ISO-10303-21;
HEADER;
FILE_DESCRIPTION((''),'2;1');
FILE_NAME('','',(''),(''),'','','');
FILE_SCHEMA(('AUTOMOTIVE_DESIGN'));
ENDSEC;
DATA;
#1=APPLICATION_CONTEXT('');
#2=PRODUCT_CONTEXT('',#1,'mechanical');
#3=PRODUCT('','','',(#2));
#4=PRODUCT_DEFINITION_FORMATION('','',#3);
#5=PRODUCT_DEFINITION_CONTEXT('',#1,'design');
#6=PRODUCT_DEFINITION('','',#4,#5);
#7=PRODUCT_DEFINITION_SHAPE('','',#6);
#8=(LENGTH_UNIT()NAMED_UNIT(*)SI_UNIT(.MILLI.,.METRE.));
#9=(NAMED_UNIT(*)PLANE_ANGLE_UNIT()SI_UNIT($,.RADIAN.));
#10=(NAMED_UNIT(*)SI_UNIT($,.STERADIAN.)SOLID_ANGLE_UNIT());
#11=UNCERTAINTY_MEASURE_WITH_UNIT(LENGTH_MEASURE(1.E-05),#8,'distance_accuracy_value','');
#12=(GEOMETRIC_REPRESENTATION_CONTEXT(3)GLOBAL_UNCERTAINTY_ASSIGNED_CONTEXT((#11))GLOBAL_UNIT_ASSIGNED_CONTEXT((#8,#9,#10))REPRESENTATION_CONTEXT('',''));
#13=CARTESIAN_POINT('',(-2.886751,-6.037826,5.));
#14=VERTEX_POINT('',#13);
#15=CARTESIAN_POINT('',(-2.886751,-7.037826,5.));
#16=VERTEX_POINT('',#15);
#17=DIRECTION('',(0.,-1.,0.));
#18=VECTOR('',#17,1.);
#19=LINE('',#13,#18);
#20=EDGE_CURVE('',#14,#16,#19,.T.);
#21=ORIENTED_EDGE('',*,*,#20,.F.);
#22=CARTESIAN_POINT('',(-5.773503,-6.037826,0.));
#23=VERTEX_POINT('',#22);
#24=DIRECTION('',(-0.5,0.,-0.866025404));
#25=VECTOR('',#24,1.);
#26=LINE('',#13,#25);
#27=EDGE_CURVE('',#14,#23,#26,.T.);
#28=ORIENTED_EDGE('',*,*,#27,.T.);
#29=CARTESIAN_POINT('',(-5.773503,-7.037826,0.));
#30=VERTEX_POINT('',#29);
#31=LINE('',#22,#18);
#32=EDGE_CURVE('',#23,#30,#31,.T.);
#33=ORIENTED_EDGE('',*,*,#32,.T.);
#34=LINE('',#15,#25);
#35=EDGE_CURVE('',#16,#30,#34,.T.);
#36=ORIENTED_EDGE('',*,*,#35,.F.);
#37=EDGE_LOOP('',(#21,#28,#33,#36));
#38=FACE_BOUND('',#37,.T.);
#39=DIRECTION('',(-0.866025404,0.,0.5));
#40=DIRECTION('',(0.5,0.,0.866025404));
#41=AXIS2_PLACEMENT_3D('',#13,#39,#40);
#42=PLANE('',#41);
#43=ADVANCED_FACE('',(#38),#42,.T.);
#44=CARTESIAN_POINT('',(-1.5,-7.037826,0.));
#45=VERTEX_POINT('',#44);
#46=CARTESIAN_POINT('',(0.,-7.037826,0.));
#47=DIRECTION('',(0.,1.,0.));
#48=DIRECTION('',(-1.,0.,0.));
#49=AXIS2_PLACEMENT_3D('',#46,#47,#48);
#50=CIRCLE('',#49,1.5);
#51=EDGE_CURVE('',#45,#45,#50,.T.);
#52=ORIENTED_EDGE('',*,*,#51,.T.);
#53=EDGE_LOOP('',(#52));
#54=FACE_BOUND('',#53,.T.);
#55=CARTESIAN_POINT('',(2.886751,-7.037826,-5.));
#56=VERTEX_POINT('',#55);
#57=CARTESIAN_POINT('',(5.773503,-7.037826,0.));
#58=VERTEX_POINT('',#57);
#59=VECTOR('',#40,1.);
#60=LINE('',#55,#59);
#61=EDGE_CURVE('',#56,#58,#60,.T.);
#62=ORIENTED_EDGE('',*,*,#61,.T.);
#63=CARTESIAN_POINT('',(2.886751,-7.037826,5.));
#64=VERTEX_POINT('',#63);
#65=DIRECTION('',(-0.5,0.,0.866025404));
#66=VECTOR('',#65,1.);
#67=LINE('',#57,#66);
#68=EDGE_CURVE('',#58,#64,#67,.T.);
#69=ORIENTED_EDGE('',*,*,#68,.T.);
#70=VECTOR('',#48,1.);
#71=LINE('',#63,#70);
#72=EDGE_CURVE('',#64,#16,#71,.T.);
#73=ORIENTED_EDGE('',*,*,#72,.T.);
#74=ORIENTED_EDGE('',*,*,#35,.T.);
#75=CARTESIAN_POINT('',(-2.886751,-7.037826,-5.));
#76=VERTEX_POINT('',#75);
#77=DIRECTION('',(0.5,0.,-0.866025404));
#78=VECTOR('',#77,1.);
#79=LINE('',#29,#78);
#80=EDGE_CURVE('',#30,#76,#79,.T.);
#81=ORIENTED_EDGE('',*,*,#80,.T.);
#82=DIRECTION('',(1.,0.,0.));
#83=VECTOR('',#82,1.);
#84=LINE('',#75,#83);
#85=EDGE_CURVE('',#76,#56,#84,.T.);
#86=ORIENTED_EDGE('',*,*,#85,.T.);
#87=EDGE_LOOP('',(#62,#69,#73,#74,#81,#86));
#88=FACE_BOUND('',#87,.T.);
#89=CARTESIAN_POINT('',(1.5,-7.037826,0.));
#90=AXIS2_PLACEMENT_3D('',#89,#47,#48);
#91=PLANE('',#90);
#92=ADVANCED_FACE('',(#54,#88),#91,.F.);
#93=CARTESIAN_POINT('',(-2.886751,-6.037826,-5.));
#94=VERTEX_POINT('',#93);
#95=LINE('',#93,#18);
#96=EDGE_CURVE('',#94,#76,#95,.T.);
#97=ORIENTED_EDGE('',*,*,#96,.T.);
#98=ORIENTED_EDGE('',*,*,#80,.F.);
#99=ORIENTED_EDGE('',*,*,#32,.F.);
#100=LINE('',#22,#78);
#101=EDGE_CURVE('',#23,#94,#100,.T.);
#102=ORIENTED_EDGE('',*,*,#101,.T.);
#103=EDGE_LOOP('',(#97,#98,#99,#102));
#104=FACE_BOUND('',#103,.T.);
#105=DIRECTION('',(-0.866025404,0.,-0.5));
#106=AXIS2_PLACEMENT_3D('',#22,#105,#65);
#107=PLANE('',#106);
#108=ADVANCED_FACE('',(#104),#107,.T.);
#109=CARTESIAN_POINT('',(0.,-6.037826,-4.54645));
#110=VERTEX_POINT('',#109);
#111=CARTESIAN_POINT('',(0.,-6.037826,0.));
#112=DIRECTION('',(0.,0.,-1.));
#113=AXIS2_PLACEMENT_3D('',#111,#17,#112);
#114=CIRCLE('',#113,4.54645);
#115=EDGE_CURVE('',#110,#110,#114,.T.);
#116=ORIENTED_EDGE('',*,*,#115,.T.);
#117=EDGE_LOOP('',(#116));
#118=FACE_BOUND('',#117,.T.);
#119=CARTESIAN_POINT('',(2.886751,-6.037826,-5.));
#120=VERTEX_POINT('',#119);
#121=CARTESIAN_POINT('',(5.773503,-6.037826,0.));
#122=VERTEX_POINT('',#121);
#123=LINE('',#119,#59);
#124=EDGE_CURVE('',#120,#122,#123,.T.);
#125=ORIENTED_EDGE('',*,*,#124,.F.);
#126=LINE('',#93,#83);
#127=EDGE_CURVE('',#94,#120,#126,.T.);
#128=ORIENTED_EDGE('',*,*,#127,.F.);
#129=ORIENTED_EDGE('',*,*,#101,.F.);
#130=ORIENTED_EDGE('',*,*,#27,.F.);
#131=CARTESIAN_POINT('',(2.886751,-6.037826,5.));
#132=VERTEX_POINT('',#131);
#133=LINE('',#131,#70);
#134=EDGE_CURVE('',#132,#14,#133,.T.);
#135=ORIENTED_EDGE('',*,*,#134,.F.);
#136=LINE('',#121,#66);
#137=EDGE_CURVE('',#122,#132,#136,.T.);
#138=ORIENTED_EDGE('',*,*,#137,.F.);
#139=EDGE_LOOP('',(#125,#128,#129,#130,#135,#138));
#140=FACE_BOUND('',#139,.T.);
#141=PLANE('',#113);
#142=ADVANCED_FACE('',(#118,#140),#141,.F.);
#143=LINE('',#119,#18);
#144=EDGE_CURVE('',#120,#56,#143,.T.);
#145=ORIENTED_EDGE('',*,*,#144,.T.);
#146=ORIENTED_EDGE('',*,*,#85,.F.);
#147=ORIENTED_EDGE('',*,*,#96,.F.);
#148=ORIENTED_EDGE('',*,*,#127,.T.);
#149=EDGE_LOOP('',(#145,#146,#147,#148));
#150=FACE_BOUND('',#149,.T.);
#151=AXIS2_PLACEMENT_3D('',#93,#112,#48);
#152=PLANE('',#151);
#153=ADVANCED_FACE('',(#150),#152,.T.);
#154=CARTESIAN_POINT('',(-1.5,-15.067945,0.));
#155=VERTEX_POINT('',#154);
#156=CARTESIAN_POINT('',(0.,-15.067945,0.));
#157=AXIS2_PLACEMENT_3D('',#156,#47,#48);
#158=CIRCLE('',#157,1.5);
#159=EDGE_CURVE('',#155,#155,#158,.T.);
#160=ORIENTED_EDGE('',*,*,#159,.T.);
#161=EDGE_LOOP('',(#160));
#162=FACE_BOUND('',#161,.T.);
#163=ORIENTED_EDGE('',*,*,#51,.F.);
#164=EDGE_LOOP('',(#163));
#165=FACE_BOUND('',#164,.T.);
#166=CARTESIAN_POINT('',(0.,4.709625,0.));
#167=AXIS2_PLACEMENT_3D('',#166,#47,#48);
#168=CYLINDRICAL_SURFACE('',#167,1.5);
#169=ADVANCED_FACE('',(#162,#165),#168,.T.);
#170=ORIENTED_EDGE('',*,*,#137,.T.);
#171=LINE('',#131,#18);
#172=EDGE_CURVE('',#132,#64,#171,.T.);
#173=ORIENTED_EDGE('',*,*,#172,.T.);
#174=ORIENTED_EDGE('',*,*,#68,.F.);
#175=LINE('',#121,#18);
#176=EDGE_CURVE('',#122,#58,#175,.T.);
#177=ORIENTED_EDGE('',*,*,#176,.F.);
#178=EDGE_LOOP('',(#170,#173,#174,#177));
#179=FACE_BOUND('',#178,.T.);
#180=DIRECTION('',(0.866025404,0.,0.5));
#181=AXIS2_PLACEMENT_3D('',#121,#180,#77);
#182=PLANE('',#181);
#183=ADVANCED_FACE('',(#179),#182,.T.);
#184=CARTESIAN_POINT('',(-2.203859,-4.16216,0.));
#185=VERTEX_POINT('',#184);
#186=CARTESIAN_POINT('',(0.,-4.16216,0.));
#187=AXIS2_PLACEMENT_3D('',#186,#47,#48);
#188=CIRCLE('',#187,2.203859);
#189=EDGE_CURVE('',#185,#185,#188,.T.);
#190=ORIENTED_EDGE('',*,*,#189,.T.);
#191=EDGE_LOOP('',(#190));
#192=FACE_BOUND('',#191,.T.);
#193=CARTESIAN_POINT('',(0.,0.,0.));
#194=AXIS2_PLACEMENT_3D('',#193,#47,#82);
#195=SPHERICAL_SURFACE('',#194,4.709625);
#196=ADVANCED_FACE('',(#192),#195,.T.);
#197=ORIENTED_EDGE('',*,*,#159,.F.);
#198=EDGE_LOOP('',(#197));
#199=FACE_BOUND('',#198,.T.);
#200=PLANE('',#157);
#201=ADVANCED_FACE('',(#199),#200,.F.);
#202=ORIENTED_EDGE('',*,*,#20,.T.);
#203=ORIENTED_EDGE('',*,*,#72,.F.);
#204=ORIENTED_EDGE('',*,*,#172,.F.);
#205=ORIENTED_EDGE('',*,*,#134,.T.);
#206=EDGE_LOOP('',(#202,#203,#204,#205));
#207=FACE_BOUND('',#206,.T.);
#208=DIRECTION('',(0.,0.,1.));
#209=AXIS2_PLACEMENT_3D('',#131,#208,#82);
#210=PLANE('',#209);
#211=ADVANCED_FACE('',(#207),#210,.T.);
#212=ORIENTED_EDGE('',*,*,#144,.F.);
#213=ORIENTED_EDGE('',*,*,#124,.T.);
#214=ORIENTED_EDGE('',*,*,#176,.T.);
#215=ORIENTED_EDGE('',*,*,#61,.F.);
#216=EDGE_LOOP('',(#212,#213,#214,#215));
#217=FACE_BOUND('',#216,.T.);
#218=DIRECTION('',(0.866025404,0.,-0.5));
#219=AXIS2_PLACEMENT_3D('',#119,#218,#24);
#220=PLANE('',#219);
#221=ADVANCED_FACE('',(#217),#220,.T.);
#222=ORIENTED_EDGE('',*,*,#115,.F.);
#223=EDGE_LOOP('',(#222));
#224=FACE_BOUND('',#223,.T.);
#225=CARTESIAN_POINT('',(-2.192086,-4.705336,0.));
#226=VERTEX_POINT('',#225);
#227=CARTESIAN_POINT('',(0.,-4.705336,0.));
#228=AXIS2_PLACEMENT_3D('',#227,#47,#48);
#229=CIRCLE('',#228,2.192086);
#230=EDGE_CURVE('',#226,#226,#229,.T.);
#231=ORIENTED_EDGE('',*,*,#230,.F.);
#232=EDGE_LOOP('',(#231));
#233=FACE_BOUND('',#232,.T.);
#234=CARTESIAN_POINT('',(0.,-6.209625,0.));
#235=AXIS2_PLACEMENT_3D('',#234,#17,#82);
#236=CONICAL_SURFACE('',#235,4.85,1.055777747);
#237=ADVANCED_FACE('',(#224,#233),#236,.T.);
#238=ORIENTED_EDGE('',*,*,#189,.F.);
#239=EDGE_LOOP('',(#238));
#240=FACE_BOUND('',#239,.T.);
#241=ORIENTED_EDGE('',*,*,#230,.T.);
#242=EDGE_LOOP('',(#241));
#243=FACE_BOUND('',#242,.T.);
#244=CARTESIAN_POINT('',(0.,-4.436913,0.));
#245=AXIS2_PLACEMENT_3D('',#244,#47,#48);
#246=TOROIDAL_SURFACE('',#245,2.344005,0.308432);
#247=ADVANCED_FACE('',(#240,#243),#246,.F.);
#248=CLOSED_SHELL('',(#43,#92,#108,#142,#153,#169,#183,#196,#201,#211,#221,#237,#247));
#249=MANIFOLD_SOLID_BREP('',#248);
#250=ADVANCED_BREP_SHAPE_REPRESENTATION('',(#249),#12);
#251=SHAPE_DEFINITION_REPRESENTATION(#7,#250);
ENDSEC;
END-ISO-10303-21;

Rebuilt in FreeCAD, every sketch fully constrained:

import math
import FreeCAD as App
import Part
import Sketcher
from FreeCAD import Vector
Q = App.Units.Quantity


def add_polygon(sketch, points):
    """Adds a closed chain of lines whose ends are joined by coincident constraints."""
    first, n = sketch.GeometryCount, len(points)
    for a, b in zip(points, points[1:] + points[:1]):
        sketch.addGeometry(Part.LineSegment(App.Vector(*a, 0), App.Vector(*b, 0)), False)
    for i in range(n):
        sketch.addConstraint(Sketcher.Constraint("Coincident", first + i, 2, first + (i + 1) % n, 1))

doc = App.newDocument("Part")
body = doc.addObject("PartDesign::Body", "Body")

# Sketch on XY plane
sketch1 = doc.addObject("Sketcher::SketchObject", "Sketch")
body.addObject(sketch1)
sketch1.AttachmentSupport = (doc.XY_Plane, [""])
sketch1.MapMode = "FlatFace"
sketch1.addGeometry(Part.LineSegment(Vector(4.85, -6.209625, 0), Vector(2.192086, -4.705336, 0)), False)
sketch1.addGeometry(Part.ArcOfCircle(Part.Circle(Vector(2.344005, -4.436913, 0), Vector(0, 0, 1), 0.308432), math.radians(117.025269), math.radians(240.491609)), False)
sketch1.addGeometry(Part.ArcOfCircle(Part.Circle(Vector(0, 0, 0), Vector(0, 0, 1), 4.709625), math.radians(-62.098833), math.radians(90)), False)
sketch1.addGeometry(Part.LineSegment(Vector(0, 4.709625, 0), Vector(0, -15.067945, 0)), False)
sketch1.addGeometry(Part.LineSegment(Vector(0, -15.067945, 0), Vector(1.5, -15.067945, 0)), False)
sketch1.addGeometry(Part.LineSegment(Vector(1.5, -15.067945, 0), Vector(1.5, -7.037826, 0)), False)
sketch1.addGeometry(Part.LineSegment(Vector(1.5, -7.037826, 0), Vector(5, -7.037826, 0)), False)
sketch1.addGeometry(Part.LineSegment(Vector(5, -7.037826, 0), Vector(5, -6.209625, 0)), False)
sketch1.addGeometry(Part.LineSegment(Vector(5, -6.209625, 0), Vector(4.85, -6.209625, 0)), False)
sketch1.addConstraint(Sketcher.Constraint("Tangent", 0, 2, 1, 2))
sketch1.addConstraint(Sketcher.Constraint("Coincident", 1, 1, 2, 1))
sketch1.addConstraint(Sketcher.Constraint("Coincident", 2, 2, 3, 1))
sketch1.addConstraint(Sketcher.Constraint("Coincident", 3, 2, 4, 1))
sketch1.addConstraint(Sketcher.Constraint("Coincident", 4, 2, 5, 1))
sketch1.addConstraint(Sketcher.Constraint("Coincident", 5, 2, 6, 1))
sketch1.addConstraint(Sketcher.Constraint("Coincident", 6, 2, 7, 1))
sketch1.addConstraint(Sketcher.Constraint("Coincident", 7, 2, 8, 1))
sketch1.addConstraint(Sketcher.Constraint("Coincident", 8, 2, 0, 1))
sketch1.addConstraint(Sketcher.Constraint("Vertical", 3))
sketch1.addConstraint(Sketcher.Constraint("Horizontal", 4))
sketch1.addConstraint(Sketcher.Constraint("Vertical", 5))
sketch1.addConstraint(Sketcher.Constraint("Horizontal", 6))
sketch1.addConstraint(Sketcher.Constraint("Vertical", 7))
sketch1.addConstraint(Sketcher.Constraint("Horizontal", 8))
sketch1.addConstraint(Sketcher.Constraint("Coincident", 2, 3, -1, 1))
sketch1.addConstraint(Sketcher.Constraint("PointOnObject", 2, 2, -2))
sketch1.addConstraint(Sketcher.Constraint("DistanceX", 4, 1, 4, 2, 1.5))
sketch1.addConstraint(Sketcher.Constraint("DistanceX", 6, 1, 6, 2, 3.5))
sketch1.addConstraint(Sketcher.Constraint("DistanceX", 8, 2, 8, 1, 0.15))
sketch1.addConstraint(Sketcher.Constraint("Radius", 1, 0.308432))
sketch1.addConstraint(Sketcher.Constraint("DistanceY", 7, 1, 7, 2, 0.828201))
sketch1.addConstraint(Sketcher.Constraint("Radius", 2, 4.709625))
sketch1.addConstraint(Sketcher.Constraint("DistanceY", 3, 2, 3, 1, 19.777569))
sketch1.addConstraint(Sketcher.Constraint("DistanceY", 5, 1, 5, 2, 8.030119))
sketch1.addConstraint(Sketcher.Constraint("DistanceX", -1, 1, 1, 1, 2.203859))
sketch1.addConstraint(Sketcher.Constraint("DistanceX", 0, 2, 1, 3, 0.151918))
revolution = doc.addObject("PartDesign::Revolution", "Revolution")
body.addObject(revolution)
revolution.Profile = sketch1
revolution.ReferenceAxis = (sketch1, ["V_Axis"])
revolution.Angle = 360

# Sketch on XZ plane
sketch2 = doc.addObject("Sketcher::SketchObject", "Sketch001")
body.addObject(sketch2)
sketch2.AttachmentSupport = (doc.XZ_Plane, [""])
sketch2.MapMode = "FlatFace"
sketch2.AttachmentOffset = App.Placement(Vector(0, 0, 7.037826), App.Rotation())
add_polygon(sketch2, [(5.773503, 0), (2.886751, 5), (-2.886751, 5), (-5.773503, 0), (-2.886751, -5), (2.886751, -5)])  # lines 0-5
sketch2.addConstraint(Sketcher.Constraint("Horizontal", 1))
sketch2.addConstraint(Sketcher.Constraint("Horizontal", 4))
sketch2.addConstraint(Sketcher.Constraint("Symmetric", 0, 2, 3, 2, -1, 1))
sketch2.addConstraint(Sketcher.Constraint("Symmetric", 2, 2, 5, 2, -1, 1))
sketch2.addConstraint(Sketcher.Constraint("PointOnObject", 2, 2, -1))
sketch2.addConstraint(Sketcher.Constraint("Parallel", 2, 5))
sketch2.addConstraint(Sketcher.Constraint("Vertical", 1, 2, 3, 2))
sketch2.addConstraint(Sketcher.Constraint("Angle", 0, Q("120 deg")))
sketch2.addConstraint(Sketcher.Constraint("DistanceY", -1, 1, 0, 2, 5.0))
sketch2.addConstraint(Sketcher.Constraint("DistanceX", 1, 2, 1, 1, 5.773503))
pad1 = doc.addObject("PartDesign::Pad", "Pad")
body.addObject(pad1)
pad1.Profile = sketch2
pad1.Length = 1
pad1.Reversed = True

doc.recompute()
